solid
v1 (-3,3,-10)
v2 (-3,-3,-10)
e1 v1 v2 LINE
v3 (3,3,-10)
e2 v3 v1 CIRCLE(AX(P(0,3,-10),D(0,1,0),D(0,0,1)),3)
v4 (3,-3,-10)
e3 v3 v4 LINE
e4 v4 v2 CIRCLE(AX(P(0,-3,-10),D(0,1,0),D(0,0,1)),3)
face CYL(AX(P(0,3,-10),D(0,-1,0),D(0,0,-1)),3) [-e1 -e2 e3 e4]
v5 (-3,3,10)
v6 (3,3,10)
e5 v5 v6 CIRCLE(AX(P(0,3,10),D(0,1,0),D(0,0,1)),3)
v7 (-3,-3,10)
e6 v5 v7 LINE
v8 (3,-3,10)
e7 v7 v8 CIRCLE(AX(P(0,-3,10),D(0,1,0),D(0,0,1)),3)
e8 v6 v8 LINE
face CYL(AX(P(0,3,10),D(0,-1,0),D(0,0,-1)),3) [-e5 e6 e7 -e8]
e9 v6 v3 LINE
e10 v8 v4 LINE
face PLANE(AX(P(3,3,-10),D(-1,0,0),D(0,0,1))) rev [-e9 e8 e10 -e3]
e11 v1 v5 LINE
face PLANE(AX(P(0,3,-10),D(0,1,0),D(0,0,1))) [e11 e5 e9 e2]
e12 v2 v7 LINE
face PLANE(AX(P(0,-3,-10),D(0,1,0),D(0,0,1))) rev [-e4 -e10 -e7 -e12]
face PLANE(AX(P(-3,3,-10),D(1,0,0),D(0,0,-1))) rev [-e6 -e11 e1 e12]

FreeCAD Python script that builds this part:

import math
import FreeCAD as App
import Part
import Sketcher

V = App.Vector
Q = App.Units.Quantity

doc = App.newDocument("Part")
body = doc.addObject("PartDesign::Body", "Body")

# Sketch on XZ plane
sketch1 = doc.addObject("Sketcher::SketchObject", "Sketch")
body.addObject(sketch1)
sketch1.AttachmentSupport = (doc.XZ_Plane, [""])
sketch1.MapMode = "FlatFace"
sketch1.addGeometry(Part.LineSegment(V(-3, -10, 0), V(-3, 10, 0)), False)
sketch1.addGeometry(Part.ArcOfCircle(Part.Circle(V(0, 10, 0), V(0, 0, 1), 3), math.radians(0), math.radians(180)), False)
sketch1.addGeometry(Part.LineSegment(V(3, 10, 0), V(3, -10, 0)), False)
sketch1.addGeometry(Part.ArcOfCircle(Part.Circle(V(0, -10, 0), V(0, 0, 1), 3), math.radians(180), math.radians(360)), False)
sketch1.addConstraint(Sketcher.Constraint("Tangent", 0, 2, 1, 2))
sketch1.addConstraint(Sketcher.Constraint("Tangent", 1, 1, 2, 1))
sketch1.addConstraint(Sketcher.Constraint("Tangent", 2, 2, 3, 2))
sketch1.addConstraint(Sketcher.Constraint("Tangent", 3, 1, 0, 1))
sketch1.addConstraint(Sketcher.Constraint("Vertical", 0))
sketch1.addConstraint(Sketcher.Constraint("Vertical", 2))
sketch1.addConstraint(Sketcher.Constraint("Symmetric", 1, 3, 3, 3, -1, 1))
sketch1.addConstraint(Sketcher.Constraint("Radius", 1, Q("3 mm")))
sketch1.addConstraint(Sketcher.Constraint("DistanceY", 0, 1, 0, 2, Q("20 mm")))
pad1 = doc.addObject("PartDesign::Pad", "Pad")
body.addObject(pad1)
pad1.Profile = sketch1
pad1.Length = 6
pad1.Midplane = True

doc.recompute()
